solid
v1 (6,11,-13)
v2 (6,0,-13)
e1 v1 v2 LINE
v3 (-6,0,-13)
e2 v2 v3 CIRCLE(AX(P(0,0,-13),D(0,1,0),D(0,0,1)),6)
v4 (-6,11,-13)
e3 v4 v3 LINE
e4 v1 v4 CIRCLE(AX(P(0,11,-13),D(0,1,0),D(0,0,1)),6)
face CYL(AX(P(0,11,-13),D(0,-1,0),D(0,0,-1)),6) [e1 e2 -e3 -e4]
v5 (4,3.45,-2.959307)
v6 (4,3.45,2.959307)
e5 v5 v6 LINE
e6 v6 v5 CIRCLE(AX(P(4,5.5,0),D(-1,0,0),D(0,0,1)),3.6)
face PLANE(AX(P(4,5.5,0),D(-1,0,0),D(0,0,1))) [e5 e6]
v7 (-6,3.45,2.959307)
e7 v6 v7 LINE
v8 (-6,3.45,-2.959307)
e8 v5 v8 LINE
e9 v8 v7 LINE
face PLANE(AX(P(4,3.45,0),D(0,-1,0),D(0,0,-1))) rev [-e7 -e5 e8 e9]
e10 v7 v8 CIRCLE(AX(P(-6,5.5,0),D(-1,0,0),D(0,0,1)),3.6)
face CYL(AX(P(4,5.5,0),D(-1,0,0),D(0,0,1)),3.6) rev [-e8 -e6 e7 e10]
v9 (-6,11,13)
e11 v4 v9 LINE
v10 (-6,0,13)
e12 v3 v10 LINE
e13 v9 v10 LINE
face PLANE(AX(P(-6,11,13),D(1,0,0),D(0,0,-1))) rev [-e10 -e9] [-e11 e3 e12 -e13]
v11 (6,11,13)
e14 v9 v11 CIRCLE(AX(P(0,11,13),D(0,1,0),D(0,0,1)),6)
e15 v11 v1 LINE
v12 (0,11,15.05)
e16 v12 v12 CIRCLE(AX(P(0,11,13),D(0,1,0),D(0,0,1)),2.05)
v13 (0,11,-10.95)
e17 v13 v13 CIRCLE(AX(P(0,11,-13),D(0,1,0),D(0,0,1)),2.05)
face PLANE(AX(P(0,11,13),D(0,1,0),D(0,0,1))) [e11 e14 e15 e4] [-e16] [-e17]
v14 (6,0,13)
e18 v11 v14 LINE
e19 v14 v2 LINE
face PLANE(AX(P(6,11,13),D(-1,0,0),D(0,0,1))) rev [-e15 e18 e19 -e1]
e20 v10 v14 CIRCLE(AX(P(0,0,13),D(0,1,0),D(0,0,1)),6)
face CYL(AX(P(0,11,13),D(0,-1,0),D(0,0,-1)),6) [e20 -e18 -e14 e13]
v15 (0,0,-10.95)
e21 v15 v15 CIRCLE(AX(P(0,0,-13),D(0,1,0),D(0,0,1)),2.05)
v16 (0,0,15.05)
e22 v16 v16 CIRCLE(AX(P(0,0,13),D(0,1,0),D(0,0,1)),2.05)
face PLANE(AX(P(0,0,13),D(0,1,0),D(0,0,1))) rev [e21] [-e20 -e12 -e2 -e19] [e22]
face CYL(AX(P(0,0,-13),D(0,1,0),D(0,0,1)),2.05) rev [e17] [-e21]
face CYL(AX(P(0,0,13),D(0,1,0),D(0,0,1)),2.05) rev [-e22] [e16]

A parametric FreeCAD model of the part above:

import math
import FreeCAD as App
import Part
import Sketcher

doc = App.newDocument("Part")
body = doc.addObject("PartDesign::Body", "Body")

# Sketch on XZ plane
sketch1 = body.newObject("Sketcher::SketchObject", "Sketch")
sketch1.AttachmentSupport = (doc.getObject("XZ_Plane"), [""])
sketch1.MapMode = "FlatFace"
sketch1.addGeometry([
    Part.LineSegment(App.Vector(-6, -13, 0), App.Vector(-6, 13, 0)),
    Part.ArcOfCircle(Part.Circle(App.Vector(0, 13, 0), App.Vector(0, 0, 1), 6), math.radians(0), math.radians(180)),
    Part.LineSegment(App.Vector(6, 13, 0), App.Vector(6, -13, 0)),
    Part.ArcOfCircle(Part.Circle(App.Vector(0, -13, 0), App.Vector(0, 0, 1), 6), math.radians(180), math.radians(360)),
], False)
sketch1.addConstraint([
    Sketcher.Constraint("Tangent", 0, 2, 1, 2),
    Sketcher.Constraint("Tangent", 1, 1, 2, 1),
    Sketcher.Constraint("Tangent", 2, 2, 3, 2),
    Sketcher.Constraint("Tangent", 3, 1, 0, 1),
    Sketcher.Constraint("Vertical", 0),
    Sketcher.Constraint("Vertical", 2),
    Sketcher.Constraint("Symmetric", 1, 3, 3, 3, -1, 1),
    Sketcher.Constraint("Radius", 1, 6.0),
    Sketcher.Constraint("DistanceY", 0, 1, 0, 2, 26.0),
])
pad1 = body.newObject("PartDesign::Pad", "Pad")
pad1.Profile = sketch1
pad1.Length = 11
pad1.Reversed = True

# Sketch on XZ plane
sketch2 = body.newObject("Sketcher::SketchObject", "Sketch001")
sketch2.AttachmentSupport = (doc.getObject("XZ_Plane"), [""])
sketch2.MapMode = "FlatFace"
sketch2.AttachmentOffset = App.Placement(App.Vector(0, 0, -11), App.Rotation())
sketch2.addGeometry([
    Part.Circle(App.Vector(0, -13, 0), App.Vector(0, 0, 1), 2),
    Part.Circle(App.Vector(0, 13, 0), App.Vector(0, 0, 1), 2),
], False)
sketch2.addConstraint([
    Sketcher.Constraint("Equal", 0, 1),
    Sketcher.Constraint("Symmetric", 0, 3, 1, 3, -1, 1),
    Sketcher.Constraint("PointOnObject", 0, 3, -2),
    Sketcher.Constraint("Diameter", 0, 4.1),
    Sketcher.Constraint("DistanceY", 0, 3, -1, 1, 13.0),
])
pocket1 = body.newObject("PartDesign::Pocket", "Pocket")
pocket1.Profile = sketch2
pocket1.Type = "ThroughAll"
pocket1.Reversed = True

# Sketch on YZ plane
sketch3 = body.newObject("Sketcher::SketchObject", "Sketch002")
sketch3.AttachmentSupport = (doc.getObject("YZ_Plane"), [""])
sketch3.MapMode = "FlatFace"
sketch3.AttachmentOffset = App.Placement(App.Vector(0, 0, -6), App.Rotation())
sketch3.addGeometry(Part.Circle(App.Vector(5.5, 0, 0), App.Vector(0, 0, 1), 3.6), False)
sketch3.addConstraint([
    Sketcher.Constraint("PointOnObject", 0, 3, -1),
    Sketcher.Constraint("Diameter", 0, 7.2),
    Sketcher.Constraint("DistanceX", -1, 1, 0, 3, 5.5),
])
pocket2 = body.newObject("PartDesign::Pocket", "Pocket001")
pocket2.Profile = sketch3
pocket2.Length = 10
pocket2.Reversed = True

# Sketch on YZ plane
sketch4 = body.newObject("Sketcher::SketchObject", "Sketch003")
sketch4.AttachmentSupport = (doc.getObject("YZ_Plane"), [""])
sketch4.MapMode = "FlatFace"
sketch4.AttachmentOffset = App.Placement(App.Vector(0, 0, -6), App.Rotation())
sketch4.addGeometry([
    Part.LineSegment(App.Vector(3.5, 3, 0), App.Vector(3.5, -3, 0)),
    Part.ArcOfCircle(Part.Circle(App.Vector(5.5, 0, 0), App.Vector(0, 0, 1), 3.6), math.radians(125), math.radians(235)),
], False)
sketch4.addConstraint([
    Sketcher.Constraint("Coincident", 0, 1, 1, 1),
    Sketcher.Constraint("Coincident", 1, 2, 0, 2),
    Sketcher.Constraint("Vertical", 0),
    Sketcher.Constraint("PointOnObject", 1, 3, -1),
    Sketcher.Constraint("Radius", 1, 3.6),
    Sketcher.Constraint("DistanceX", -1, 1, 1, 3, 5.5),
    Sketcher.Constraint("DistanceX", -1, 1, 0, 1, 3.45),
])
pad2 = body.newObject("PartDesign::Pad", "Pad001")
pad2.Profile = sketch4
pad2.Length = 10

doc.recompute()
